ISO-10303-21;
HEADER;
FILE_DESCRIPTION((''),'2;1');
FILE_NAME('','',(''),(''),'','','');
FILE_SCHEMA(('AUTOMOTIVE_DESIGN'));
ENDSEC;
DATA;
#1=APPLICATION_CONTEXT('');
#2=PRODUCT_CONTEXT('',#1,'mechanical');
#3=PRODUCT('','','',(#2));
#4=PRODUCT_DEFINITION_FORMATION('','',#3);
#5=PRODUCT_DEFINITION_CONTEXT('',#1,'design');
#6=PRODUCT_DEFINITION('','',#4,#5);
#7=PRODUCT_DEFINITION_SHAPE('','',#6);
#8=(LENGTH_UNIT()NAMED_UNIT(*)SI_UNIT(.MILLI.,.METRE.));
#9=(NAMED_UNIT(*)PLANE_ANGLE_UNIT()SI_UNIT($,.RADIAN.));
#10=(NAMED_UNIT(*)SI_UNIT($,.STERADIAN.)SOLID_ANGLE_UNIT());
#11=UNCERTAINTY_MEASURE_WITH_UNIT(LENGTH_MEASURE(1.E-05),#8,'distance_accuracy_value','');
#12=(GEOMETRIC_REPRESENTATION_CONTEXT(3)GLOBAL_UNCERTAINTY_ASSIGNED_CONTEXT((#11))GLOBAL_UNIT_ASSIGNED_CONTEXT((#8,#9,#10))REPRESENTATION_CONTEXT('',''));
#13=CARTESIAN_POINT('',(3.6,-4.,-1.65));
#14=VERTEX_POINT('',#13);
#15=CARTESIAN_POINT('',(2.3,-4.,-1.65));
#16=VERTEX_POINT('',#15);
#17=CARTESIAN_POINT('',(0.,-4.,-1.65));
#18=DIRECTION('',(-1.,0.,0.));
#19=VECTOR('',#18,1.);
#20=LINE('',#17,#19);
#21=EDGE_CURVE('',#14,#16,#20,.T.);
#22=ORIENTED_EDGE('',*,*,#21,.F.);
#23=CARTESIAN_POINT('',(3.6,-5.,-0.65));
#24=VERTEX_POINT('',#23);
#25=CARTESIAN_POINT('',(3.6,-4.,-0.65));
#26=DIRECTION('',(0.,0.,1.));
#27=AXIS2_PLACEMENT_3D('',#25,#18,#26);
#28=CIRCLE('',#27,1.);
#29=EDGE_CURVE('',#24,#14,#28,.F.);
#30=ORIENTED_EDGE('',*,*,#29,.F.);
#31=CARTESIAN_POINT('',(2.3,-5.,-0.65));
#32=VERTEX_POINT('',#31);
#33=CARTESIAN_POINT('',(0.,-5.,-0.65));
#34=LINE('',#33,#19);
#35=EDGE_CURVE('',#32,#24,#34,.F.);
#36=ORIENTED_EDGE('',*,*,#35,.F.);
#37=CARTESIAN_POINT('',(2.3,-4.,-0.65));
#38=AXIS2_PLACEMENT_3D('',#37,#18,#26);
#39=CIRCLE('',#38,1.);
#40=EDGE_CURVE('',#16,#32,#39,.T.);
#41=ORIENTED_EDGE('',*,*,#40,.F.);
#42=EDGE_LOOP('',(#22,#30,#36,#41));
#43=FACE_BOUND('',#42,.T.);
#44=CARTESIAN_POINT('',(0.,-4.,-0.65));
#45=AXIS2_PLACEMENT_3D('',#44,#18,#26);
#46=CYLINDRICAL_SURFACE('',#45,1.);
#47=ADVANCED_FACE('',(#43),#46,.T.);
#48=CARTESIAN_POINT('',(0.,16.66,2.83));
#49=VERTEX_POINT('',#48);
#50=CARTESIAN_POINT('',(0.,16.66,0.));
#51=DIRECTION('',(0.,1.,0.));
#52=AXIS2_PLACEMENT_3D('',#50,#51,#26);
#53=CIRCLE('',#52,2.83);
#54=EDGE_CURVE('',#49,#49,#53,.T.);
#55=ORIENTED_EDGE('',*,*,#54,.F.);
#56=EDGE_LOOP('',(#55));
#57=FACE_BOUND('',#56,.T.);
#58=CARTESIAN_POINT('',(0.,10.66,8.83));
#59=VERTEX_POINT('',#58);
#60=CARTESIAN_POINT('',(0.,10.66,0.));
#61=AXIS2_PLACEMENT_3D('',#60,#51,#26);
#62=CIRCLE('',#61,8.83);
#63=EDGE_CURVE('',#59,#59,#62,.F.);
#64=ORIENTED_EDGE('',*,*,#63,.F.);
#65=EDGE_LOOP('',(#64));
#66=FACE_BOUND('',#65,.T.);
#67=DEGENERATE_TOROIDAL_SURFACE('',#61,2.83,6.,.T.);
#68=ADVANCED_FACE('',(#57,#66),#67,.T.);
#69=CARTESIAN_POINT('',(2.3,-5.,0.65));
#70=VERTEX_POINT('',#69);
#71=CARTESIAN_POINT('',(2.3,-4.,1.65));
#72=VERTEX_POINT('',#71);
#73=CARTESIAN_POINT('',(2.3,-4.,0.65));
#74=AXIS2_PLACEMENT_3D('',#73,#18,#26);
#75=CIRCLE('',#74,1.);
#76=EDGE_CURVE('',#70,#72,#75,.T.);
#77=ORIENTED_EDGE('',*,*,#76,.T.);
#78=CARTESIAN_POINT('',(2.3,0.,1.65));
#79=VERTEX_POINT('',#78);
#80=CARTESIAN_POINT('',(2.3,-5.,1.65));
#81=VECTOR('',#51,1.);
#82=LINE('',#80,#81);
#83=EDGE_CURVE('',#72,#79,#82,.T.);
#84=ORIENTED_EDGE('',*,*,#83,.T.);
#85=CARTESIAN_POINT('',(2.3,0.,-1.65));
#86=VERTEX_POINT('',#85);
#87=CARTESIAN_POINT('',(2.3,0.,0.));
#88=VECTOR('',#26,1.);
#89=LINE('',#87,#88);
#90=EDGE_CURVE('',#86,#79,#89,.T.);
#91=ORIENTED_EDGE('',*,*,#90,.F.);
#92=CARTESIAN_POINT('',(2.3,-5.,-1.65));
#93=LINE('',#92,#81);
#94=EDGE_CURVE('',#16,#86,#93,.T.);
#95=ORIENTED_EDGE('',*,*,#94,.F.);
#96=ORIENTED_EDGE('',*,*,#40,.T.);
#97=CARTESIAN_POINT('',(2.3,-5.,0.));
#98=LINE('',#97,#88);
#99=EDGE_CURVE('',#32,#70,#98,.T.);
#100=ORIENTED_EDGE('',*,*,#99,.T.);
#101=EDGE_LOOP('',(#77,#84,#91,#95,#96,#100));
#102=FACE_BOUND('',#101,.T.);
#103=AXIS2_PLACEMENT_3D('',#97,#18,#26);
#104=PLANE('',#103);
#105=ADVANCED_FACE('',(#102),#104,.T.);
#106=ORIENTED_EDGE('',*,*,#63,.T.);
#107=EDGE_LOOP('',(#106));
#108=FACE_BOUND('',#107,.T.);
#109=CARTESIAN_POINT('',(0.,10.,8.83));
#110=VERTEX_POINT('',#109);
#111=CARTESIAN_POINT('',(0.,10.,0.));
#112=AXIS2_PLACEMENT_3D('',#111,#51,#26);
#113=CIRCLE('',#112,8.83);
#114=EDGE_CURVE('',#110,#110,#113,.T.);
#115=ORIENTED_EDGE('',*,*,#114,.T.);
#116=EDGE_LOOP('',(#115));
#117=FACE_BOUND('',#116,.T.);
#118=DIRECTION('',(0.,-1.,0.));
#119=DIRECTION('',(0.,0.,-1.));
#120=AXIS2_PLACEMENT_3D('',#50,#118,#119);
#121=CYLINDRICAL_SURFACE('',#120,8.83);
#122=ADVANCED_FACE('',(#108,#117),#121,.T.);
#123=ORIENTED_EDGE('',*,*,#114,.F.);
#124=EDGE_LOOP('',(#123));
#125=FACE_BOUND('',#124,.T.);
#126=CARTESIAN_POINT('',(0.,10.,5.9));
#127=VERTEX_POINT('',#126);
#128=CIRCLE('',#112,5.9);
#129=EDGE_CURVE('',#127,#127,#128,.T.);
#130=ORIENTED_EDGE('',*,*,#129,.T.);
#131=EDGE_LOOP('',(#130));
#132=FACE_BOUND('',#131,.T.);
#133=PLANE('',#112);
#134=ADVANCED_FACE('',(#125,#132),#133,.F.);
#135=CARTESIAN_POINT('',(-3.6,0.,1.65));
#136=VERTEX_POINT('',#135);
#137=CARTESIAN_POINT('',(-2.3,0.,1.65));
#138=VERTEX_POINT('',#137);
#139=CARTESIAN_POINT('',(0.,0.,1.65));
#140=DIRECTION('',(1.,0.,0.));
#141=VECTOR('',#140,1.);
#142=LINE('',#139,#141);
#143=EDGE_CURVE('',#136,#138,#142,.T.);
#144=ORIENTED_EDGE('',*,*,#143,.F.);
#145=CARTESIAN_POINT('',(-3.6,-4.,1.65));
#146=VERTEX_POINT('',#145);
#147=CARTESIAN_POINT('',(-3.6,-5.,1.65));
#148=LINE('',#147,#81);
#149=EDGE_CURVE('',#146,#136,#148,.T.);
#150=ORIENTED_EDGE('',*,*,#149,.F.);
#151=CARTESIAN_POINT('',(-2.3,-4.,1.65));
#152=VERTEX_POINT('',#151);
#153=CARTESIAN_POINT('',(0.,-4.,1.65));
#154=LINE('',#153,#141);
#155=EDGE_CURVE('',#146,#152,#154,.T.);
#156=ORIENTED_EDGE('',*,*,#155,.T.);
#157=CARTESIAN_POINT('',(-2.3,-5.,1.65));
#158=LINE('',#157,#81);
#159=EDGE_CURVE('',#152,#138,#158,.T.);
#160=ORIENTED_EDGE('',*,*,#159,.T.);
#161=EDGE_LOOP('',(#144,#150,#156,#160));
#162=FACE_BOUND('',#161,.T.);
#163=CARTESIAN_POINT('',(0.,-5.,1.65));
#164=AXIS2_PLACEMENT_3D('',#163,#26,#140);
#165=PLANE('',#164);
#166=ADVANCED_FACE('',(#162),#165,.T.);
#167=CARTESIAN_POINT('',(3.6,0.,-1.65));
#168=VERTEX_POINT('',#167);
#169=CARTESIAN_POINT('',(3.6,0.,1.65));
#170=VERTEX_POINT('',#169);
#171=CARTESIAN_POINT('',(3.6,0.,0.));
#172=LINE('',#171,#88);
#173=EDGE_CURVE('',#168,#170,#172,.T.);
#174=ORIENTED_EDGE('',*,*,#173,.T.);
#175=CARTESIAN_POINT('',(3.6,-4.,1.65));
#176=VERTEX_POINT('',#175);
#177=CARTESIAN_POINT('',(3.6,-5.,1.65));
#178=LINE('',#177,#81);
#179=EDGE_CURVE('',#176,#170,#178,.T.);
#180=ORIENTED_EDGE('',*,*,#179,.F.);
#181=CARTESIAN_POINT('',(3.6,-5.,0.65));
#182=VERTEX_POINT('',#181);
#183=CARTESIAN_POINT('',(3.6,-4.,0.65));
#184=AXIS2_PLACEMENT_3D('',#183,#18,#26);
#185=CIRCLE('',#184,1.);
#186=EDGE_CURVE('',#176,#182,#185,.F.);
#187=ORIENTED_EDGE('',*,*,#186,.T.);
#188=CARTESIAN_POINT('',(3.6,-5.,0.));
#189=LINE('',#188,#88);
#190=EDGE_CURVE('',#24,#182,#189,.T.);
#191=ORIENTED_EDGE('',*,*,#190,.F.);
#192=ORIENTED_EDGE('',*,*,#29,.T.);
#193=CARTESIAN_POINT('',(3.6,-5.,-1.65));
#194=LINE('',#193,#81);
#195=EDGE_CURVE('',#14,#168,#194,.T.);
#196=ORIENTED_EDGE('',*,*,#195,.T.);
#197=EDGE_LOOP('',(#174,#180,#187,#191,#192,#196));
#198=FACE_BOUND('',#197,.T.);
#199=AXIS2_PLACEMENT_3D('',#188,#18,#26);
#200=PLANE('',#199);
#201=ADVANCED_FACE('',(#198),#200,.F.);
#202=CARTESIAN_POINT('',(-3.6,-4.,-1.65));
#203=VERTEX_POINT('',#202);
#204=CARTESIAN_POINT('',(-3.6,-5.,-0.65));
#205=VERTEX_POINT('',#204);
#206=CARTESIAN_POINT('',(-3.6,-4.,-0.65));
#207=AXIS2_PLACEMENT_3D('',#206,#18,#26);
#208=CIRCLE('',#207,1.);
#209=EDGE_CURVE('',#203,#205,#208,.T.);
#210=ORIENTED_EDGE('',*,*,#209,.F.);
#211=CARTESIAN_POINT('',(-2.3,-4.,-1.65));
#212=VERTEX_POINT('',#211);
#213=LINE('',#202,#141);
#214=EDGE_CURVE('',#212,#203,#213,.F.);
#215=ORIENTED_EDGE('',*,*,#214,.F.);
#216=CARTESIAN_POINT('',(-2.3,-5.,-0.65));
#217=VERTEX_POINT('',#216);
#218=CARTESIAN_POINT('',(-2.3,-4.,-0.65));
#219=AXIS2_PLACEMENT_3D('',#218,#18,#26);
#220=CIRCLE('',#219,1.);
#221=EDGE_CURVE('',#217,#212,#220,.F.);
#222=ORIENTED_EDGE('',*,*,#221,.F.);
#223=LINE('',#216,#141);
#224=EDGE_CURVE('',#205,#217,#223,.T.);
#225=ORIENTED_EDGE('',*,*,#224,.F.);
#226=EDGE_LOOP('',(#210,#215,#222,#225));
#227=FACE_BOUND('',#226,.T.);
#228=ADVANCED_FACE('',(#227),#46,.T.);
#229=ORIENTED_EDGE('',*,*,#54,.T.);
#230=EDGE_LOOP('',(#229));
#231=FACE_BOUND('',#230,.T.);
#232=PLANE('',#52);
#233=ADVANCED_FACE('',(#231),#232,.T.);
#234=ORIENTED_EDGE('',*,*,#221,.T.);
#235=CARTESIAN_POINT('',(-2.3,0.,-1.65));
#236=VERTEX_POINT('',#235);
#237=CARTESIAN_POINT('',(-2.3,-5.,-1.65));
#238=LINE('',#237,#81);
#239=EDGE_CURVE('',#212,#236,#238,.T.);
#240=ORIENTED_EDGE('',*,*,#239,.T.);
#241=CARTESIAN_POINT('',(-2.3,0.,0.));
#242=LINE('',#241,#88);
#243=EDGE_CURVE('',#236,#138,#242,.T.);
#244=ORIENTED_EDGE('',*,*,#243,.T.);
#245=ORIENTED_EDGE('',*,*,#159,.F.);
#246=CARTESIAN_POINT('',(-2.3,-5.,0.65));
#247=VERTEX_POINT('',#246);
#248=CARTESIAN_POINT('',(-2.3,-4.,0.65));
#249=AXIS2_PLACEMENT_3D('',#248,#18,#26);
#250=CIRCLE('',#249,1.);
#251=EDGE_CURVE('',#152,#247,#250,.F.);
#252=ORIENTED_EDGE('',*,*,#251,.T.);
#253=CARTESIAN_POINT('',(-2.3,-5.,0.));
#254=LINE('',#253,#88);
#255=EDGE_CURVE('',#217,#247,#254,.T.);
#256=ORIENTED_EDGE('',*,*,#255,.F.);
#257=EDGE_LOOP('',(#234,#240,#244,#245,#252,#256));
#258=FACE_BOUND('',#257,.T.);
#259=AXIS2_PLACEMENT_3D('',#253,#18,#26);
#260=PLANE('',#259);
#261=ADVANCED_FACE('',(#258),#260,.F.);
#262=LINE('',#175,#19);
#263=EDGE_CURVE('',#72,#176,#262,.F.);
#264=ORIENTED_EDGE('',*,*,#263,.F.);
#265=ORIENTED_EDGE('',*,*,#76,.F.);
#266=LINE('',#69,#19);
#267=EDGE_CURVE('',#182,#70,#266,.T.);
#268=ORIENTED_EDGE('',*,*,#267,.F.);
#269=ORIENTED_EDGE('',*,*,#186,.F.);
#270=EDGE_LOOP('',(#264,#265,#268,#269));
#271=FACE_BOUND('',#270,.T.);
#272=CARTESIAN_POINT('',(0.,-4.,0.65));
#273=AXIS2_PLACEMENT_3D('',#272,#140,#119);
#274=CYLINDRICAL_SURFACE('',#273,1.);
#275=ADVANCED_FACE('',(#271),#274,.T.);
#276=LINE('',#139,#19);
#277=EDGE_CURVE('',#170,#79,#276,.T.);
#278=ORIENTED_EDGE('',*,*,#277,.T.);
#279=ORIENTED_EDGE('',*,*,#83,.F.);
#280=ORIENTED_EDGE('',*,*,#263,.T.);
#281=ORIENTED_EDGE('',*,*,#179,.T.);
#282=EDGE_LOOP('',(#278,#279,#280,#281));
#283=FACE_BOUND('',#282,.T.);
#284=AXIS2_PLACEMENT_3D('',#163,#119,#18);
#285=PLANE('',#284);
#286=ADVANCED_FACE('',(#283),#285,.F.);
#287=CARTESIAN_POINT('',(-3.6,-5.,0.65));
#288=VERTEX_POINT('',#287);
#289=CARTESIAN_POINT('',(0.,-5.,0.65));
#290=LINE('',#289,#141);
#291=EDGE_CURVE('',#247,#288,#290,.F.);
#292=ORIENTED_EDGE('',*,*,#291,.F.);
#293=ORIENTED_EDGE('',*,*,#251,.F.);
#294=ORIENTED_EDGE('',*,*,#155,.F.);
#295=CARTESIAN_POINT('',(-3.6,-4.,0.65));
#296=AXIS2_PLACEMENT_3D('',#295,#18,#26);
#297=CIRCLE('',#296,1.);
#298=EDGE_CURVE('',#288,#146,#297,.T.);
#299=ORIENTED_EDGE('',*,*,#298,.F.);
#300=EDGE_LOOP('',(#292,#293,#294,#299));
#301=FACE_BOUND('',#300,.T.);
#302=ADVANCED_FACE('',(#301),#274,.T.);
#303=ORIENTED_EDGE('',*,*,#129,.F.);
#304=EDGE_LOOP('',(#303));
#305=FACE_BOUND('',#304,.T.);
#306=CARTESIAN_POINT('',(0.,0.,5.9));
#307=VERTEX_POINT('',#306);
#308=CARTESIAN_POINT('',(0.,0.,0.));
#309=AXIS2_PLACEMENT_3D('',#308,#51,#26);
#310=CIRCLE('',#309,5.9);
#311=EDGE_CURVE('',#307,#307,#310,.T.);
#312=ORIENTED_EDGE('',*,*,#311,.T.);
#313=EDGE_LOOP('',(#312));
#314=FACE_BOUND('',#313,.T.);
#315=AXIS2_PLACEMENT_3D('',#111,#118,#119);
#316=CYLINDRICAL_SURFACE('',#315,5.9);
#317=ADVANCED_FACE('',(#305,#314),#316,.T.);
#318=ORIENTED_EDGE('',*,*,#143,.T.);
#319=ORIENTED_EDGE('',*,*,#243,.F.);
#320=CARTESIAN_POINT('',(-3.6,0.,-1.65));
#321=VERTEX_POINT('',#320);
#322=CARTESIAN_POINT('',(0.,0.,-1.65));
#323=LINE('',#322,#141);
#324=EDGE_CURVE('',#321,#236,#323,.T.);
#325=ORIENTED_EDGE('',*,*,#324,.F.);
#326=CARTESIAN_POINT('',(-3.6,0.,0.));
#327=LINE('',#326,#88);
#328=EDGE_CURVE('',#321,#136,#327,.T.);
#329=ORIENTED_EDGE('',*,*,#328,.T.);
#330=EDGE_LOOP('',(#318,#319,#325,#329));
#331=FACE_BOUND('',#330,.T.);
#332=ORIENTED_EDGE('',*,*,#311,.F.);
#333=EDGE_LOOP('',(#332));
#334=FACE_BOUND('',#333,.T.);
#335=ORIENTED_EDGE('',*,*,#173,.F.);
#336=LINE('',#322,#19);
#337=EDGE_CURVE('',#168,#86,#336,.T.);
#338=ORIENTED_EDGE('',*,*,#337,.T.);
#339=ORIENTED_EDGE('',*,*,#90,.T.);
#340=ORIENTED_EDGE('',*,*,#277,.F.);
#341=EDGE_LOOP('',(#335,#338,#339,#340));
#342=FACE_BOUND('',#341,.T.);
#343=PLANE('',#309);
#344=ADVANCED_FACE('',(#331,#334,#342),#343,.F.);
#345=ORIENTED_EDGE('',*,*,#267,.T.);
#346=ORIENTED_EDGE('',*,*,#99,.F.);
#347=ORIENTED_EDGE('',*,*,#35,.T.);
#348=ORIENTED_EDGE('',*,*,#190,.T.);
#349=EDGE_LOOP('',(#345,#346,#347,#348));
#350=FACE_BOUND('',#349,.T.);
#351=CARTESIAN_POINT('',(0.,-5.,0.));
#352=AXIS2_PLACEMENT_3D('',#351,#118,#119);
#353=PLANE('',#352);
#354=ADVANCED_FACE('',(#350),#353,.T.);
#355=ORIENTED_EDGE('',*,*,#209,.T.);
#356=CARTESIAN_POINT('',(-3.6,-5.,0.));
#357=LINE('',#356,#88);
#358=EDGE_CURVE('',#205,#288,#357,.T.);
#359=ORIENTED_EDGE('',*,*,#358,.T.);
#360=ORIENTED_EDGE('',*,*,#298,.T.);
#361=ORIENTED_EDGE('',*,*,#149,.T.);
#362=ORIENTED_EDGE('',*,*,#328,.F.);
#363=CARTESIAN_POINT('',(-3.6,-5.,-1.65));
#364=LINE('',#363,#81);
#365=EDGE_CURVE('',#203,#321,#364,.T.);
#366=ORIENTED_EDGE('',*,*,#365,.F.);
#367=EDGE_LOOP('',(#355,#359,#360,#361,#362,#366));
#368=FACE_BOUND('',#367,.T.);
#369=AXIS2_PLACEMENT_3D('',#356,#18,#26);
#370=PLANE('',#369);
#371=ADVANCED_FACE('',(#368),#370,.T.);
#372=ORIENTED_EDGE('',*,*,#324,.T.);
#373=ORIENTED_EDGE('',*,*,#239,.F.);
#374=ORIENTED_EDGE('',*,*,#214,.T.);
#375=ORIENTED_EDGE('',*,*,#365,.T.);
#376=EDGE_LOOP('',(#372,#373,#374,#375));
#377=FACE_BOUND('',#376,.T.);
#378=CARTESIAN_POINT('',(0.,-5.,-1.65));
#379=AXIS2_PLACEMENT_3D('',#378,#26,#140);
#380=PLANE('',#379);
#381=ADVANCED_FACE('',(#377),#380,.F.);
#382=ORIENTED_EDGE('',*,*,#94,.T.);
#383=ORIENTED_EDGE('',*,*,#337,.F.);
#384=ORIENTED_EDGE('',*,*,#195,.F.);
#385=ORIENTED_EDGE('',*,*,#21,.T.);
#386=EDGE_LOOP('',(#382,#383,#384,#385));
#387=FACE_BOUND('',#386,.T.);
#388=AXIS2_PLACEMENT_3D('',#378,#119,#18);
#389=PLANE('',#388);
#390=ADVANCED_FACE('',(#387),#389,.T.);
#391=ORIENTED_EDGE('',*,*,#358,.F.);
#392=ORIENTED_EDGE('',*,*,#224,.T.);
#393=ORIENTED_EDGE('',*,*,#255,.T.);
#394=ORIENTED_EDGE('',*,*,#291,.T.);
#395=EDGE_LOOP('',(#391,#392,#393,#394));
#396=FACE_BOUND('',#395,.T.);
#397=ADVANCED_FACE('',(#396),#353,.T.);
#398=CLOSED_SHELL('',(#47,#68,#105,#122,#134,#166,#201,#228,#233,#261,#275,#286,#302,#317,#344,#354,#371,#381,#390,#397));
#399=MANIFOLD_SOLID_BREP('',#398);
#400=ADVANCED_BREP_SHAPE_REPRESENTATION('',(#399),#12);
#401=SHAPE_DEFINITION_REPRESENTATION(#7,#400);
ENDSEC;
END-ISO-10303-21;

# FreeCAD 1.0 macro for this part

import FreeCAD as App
import Part
import Sketcher


def edges_at(feature, points):
    """Names of the edges that pass closest to the given points."""
    edges = feature.Shape.Edges
    near = lambda p: min(range(len(edges)), key=lambda i: edges[i].distToShape(Part.Vertex(*p))[0])
    return sorted({f"Edge{near(p) + 1}" for p in points})


def add_polygon(sketch, points):
    """Adds a closed chain of lines whose ends are joined by coincident constraints."""
    first, n = sketch.GeometryCount, len(points)
    for a, b in zip(points, points[1:] + points[:1]):
        sketch.addGeometry(Part.LineSegment(App.Vector(*a, 0), App.Vector(*b, 0)), False)
    for i in range(n):
        sketch.addConstraint(Sketcher.Constraint("Coincident", first + i, 2, first + (i + 1) % n, 1))

doc = App.newDocument("Part")
body = doc.addObject("PartDesign::Body", "Body")

# Sketch on XZ plane
sketch1 = body.newObject("Sketcher::SketchObject", "Sketch")
sketch1.AttachmentSupport = (doc.getObject("XZ_Plane"), [""])
sketch1.MapMode = "FlatFace"
sketch1.addGeometry(Part.Circle(App.Vector(0, 0, 0), App.Vector(0, 0, 1), 6), False)
sketch1.addConstraint(Sketcher.Constraint("Coincident", 0, 3, -1, 1))
sketch1.addConstraint(Sketcher.Constraint("Diameter", 0, 11.8))
pad1 = body.newObject("PartDesign::Pad", "Pad")
pad1.Profile = sketch1
pad1.Length = 10
pad1.Reversed = True

# Sketch on XZ plane
sketch2 = body.newObject("Sketcher::SketchObject", "Sketch001")
sketch2.AttachmentSupport = (doc.getObject("XZ_Plane"), [""])
sketch2.MapMode = "FlatFace"
sketch2.AttachmentOffset = App.Placement(App.Vector(0, 0, -10), App.Rotation())
sketch2.addGeometry(Part.Circle(App.Vector(0, 0, 0), App.Vector(0, 0, 1), 9), False)
sketch2.addConstraint(Sketcher.Constraint("Coincident", 0, 3, -1, 1))
sketch2.addConstraint(Sketcher.Constraint("Diameter", 0, 17.66))
pad2 = body.newObject("PartDesign::Pad", "Pad001")
pad2.Profile = sketch2
pad2.Length = 6.66
pad2.Reversed = True
doc.recompute()

fillet = body.newObject("PartDesign::Fillet", "Fillet")
fillet.Base = (pad2, edges_at(pad2, [(0, 16.66, -8.83)]))
fillet.Radius = 6

# Sketch on XZ plane
sketch3 = body.newObject("Sketcher::SketchObject", "Sketch002")
sketch3.AttachmentSupport = (doc.getObject("XZ_Plane"), [""])
sketch3.MapMode = "FlatFace"
add_polygon(sketch3, [(2.3, -1.6), (3.6, -1.6), (3.6, 1.6), (2.3, 1.6)])  # lines 0-3
add_polygon(sketch3, [(-3.6, 1.6), (-3.6, -1.6), (-2.3, -1.6), (-2.3, 1.6)])  # lines 4-7
sketch3.addConstraint(Sketcher.Constraint("Horizontal", 0))
sketch3.addConstraint(Sketcher.Constraint("Vertical", 1))
sketch3.addConstraint(Sketcher.Constraint("Horizontal", 2))
sketch3.addConstraint(Sketcher.Constraint("Vertical", 3))
sketch3.addConstraint(Sketcher.Constraint("Vertical", 4))
sketch3.addConstraint(Sketcher.Constraint("Horizontal", 5))
sketch3.addConstraint(Sketcher.Constraint("Vertical", 6))
sketch3.addConstraint(Sketcher.Constraint("Horizontal", 7))
sketch3.addConstraint(Sketcher.Constraint("Symmetric", 1, 2, 4, 2, -1, 1))
sketch3.addConstraint(Sketcher.Constraint("Symmetric", 3, 2, 6, 2, -1, 1))
sketch3.addConstraint(Sketcher.Constraint("Horizontal", 3, 2, 4, 2))
sketch3.addConstraint(Sketcher.Constraint("DistanceX", 0, 1, 0, 2, 1.3))
sketch3.addConstraint(Sketcher.Constraint("DistanceY", 1, 1, 1, 2, 3.3))
sketch3.addConstraint(Sketcher.Constraint("DistanceX", -1, 1, 0, 2, 3.6))
pad3 = body.newObject("PartDesign::Pad", "Pad002")
pad3.Profile = sketch3
pad3.Length = 5
doc.recompute()

fillet2 = body.newObject("PartDesign::Fillet", "Fillet001")
fillet2.Base = (pad3, edges_at(pad3, [
    (2.95, -5, -1.65),
    (2.95, -5, 1.65),
    (-2.95, -5, 1.65),
    (-2.95, -5, -1.65),
]))
fillet2.Radius = 1

doc.recompute()
